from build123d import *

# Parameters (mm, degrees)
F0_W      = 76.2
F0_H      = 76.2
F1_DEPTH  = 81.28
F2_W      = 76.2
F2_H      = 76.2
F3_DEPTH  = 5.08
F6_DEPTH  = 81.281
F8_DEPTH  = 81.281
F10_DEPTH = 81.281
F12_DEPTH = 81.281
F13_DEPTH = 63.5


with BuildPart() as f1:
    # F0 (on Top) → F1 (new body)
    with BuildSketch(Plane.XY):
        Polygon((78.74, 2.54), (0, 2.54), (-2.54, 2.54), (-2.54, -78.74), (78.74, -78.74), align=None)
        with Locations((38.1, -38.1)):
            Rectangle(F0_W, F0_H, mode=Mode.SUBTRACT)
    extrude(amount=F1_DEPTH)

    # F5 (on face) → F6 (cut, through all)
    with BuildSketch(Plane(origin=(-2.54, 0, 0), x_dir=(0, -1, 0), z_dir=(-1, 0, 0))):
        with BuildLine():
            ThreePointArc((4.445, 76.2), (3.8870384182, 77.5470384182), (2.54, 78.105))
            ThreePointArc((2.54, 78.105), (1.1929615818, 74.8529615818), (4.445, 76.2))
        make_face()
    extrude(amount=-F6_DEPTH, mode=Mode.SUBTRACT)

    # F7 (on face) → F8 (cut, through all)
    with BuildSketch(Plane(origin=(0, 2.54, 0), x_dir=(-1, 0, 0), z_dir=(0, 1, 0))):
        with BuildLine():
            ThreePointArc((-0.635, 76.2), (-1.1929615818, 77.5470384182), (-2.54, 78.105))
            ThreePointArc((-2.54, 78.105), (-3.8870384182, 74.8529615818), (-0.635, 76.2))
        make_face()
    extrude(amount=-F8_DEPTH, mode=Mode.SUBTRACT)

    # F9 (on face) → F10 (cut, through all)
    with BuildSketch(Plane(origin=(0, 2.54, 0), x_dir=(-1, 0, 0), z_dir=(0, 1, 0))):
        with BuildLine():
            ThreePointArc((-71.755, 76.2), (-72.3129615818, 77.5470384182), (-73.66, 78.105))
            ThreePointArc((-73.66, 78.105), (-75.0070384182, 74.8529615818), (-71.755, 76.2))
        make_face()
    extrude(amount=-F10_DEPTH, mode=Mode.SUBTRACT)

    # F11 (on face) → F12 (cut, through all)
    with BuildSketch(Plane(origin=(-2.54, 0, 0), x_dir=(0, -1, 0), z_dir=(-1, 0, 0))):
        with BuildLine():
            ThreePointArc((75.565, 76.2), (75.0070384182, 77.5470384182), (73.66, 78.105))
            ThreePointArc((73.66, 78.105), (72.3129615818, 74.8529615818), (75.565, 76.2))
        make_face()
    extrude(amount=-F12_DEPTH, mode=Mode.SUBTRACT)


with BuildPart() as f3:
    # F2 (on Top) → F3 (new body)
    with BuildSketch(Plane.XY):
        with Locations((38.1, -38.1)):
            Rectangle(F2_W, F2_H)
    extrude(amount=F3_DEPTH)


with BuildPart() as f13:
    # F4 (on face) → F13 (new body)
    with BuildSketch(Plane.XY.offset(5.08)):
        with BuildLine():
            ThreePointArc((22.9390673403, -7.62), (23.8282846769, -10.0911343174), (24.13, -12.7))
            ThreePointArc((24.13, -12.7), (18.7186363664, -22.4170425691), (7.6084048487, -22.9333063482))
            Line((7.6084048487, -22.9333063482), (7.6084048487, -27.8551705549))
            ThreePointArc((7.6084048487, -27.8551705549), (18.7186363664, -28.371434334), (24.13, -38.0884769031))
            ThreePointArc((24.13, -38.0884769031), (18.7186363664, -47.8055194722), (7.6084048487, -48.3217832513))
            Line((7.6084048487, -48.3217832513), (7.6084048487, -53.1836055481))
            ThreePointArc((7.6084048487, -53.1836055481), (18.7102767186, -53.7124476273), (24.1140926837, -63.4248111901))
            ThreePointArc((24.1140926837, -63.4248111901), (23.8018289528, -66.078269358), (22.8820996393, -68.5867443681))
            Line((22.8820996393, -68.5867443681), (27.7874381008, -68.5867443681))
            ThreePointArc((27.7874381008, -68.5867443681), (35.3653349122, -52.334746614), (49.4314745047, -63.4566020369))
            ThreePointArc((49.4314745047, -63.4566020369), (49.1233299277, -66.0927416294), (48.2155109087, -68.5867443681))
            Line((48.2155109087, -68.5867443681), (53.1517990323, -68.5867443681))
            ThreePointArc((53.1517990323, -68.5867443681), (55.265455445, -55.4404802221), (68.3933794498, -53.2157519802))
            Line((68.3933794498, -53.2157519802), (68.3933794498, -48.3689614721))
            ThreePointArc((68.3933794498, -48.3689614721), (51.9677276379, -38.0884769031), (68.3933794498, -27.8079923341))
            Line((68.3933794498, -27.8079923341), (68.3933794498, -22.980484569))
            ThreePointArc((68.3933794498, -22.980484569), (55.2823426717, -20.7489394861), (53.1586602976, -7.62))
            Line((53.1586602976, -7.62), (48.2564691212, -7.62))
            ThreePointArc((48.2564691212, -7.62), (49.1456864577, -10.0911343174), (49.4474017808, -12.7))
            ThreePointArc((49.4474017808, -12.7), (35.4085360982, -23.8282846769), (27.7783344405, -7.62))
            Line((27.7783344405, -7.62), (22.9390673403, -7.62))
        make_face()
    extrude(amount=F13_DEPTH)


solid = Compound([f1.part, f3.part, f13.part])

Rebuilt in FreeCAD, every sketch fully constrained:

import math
import FreeCAD as App
import Part
import Sketcher
Q = App.Units.Quantity


def add_polygon(sketch, points):
    """Adds a closed chain of lines whose ends are joined by coincident constraints."""
    first, n = sketch.GeometryCount, len(points)
    for a, b in zip(points, points[1:] + points[:1]):
        sketch.addGeometry(Part.LineSegment(App.Vector(*a, 0), App.Vector(*b, 0)), False)
    for i in range(n):
        sketch.addConstraint(Sketcher.Constraint("Coincident", first + i, 2, first + (i + 1) % n, 1))

doc = App.newDocument("Part")
body = doc.addObject("PartDesign::Body", "Body")

# Sketch on XY plane
sketch1 = doc.addObject("Sketcher::SketchObject", "Sketch")
body.addObject(sketch1)
sketch1.AttachmentSupport = (doc.XY_Plane, [""])
sketch1.MapMode = "FlatFace"
add_polygon(sketch1, [(78.74, 2.54), (-2.54, 2.54), (-2.54, -78.74), (78.74, -78.74)])  # lines 0-3
add_polygon(sketch1, [(76.2, -76.2), (0, -76.2), (0, 0), (76.2, 0)])  # lines 4-7
sketch1.addConstraint(Sketcher.Constraint("Horizontal", 0))
sketch1.addConstraint(Sketcher.Constraint("Vertical", 1))
sketch1.addConstraint(Sketcher.Constraint("Horizontal", 2))
sketch1.addConstraint(Sketcher.Constraint("Vertical", 3))
sketch1.addConstraint(Sketcher.Constraint("Horizontal", 4))
sketch1.addConstraint(Sketcher.Constraint("Vertical", 5))
sketch1.addConstraint(Sketcher.Constraint("Horizontal", 6))
sketch1.addConstraint(Sketcher.Constraint("Vertical", 7))
sketch1.addConstraint(Sketcher.Constraint("Coincident", 5, 2, -1, 1))
sketch1.addConstraint(Sketcher.Constraint("Equal", 2, 1))
sketch1.addConstraint(Sketcher.Constraint("Equal", 6, 5))
sketch1.addConstraint(Sketcher.Constraint("DistanceX", 4, 2, 4, 1, Q("3 in")))
sketch1.addConstraint(Sketcher.Constraint("DistanceX", 0, 2, 0, 1, Q("3.2 in")))
sketch1.addConstraint(Sketcher.Constraint("DistanceX", 0, 2, -1, 1, Q("0.1 in")))
sketch1.addConstraint(Sketcher.Constraint("DistanceY", -1, 1, 0, 2, Q("0.1 in")))
pad1 = doc.addObject("PartDesign::Pad", "Pad")
body.addObject(pad1)
pad1.Profile = sketch1
pad1.Length = Q("3.2 in")

# Sketch on YZ plane
sketch2 = doc.addObject("Sketcher::SketchObject", "Sketch001")
body.addObject(sketch2)
sketch2.AttachmentSupport = (doc.YZ_Plane, [""])
sketch2.MapMode = "FlatFace"
sketch2.AttachmentOffset = App.Placement(App.Vector(0, 0, -0.1 * 25.4), App.Rotation())
sketch2.addGeometry(Part.ArcOfCircle(Part.Circle(App.Vector(-2.54, 76.2, 0), App.Vector(0, 0, 1), 1.905), math.radians(90), math.radians(180)), False)
sketch2.addGeometry(Part.ArcOfCircle(Part.Circle(App.Vector(-2.54, 76.2, 0), App.Vector(0, 0, 1), 1.905), math.radians(180), math.radians(450)), False)
sketch2.addConstraint(Sketcher.Constraint("Tangent", 0, 1, 1, 2))
sketch2.addConstraint(Sketcher.Constraint("Coincident", 1, 1, 0, 2))
sketch2.addConstraint(Sketcher.Constraint("Horizontal", 0, 3, 1, 1))
sketch2.addConstraint(Sketcher.Constraint("Vertical", 1, 3, 0, 1))
sketch2.addConstraint(Sketcher.Constraint("DistanceY", -1, 1, 0, 3, Q("3 in")))
sketch2.addConstraint(Sketcher.Constraint("Radius", 0, Q("0.075 in")))
sketch2.addConstraint(Sketcher.Constraint("DistanceX", 0, 3, -1, 1, Q("0.1 in")))
pocket1 = doc.addObject("PartDesign::Pocket", "Pocket")
body.addObject(pocket1)
pocket1.Profile = sketch2
pocket1.Type = "ThroughAll"
pocket1.Reversed = True

# Sketch on XZ plane
sketch3 = doc.addObject("Sketcher::SketchObject", "Sketch002")
body.addObject(sketch3)
sketch3.AttachmentSupport = (doc.XZ_Plane, [""])
sketch3.MapMode = "FlatFace"
sketch3.AttachmentOffset = App.Placement(App.Vector(0, 0, -0.1 * 25.4), App.Rotation())
sketch3.addGeometry(Part.ArcOfCircle(Part.Circle(App.Vector(2.54, 76.2, 0), App.Vector(0, 0, 1), 1.905), math.radians(90), math.radians(180)), False)
sketch3.addGeometry(Part.ArcOfCircle(Part.Circle(App.Vector(2.54, 76.2, 0), App.Vector(0, 0, 1), 1.905), math.radians(180), math.radians(450)), False)
sketch3.addConstraint(Sketcher.Constraint("Tangent", 0, 1, 1, 2))
sketch3.addConstraint(Sketcher.Constraint("Coincident", 1, 1, 0, 2))
sketch3.addConstraint(Sketcher.Constraint("Horizontal", 0, 3, 1, 1))
sketch3.addConstraint(Sketcher.Constraint("Vertical", 1, 3, 0, 1))
sketch3.addConstraint(Sketcher.Constraint("DistanceY", -1, 1, 0, 3, Q("3 in")))
sketch3.addConstraint(Sketcher.Constraint("Radius", 0, Q("0.075 in")))
sketch3.addConstraint(Sketcher.Constraint("DistanceX", -1, 1, 0, 3, Q("0.1 in")))
pocket2 = doc.addObject("PartDesign::Pocket", "Pocket001")
body.addObject(pocket2)
pocket2.Profile = sketch3
pocket2.Type = "ThroughAll"
pocket2.Reversed = True

# Sketch on XZ plane
sketch4 = doc.addObject("Sketcher::SketchObject", "Sketch003")
body.addObject(sketch4)
sketch4.AttachmentSupport = (doc.XZ_Plane, [""])
sketch4.MapMode = "FlatFace"
sketch4.AttachmentOffset = App.Placement(App.Vector(0, 0, -0.1 * 25.4), App.Rotation())
sketch4.addGeometry(Part.ArcOfCircle(Part.Circle(App.Vector(73.66, 76.2, 0), App.Vector(0, 0, 1), 1.905), math.radians(90), math.radians(180)), False)
sketch4.addGeometry(Part.ArcOfCircle(Part.Circle(App.Vector(73.66, 76.2, 0), App.Vector(0, 0, 1), 1.905), math.radians(180), math.radians(450)), False)
sketch4.addConstraint(Sketcher.Constraint("Tangent", 0, 1, 1, 2))
sketch4.addConstraint(Sketcher.Constraint("Coincident", 1, 1, 0, 2))
sketch4.addConstraint(Sketcher.Constraint("Horizontal", 0, 3, 1, 1))
sketch4.addConstraint(Sketcher.Constraint("Vertical", 1, 3, 0, 1))
sketch4.addConstraint(Sketcher.Constraint("DistanceY", -1, 1, 0, 3, Q("3 in")))
sketch4.addConstraint(Sketcher.Constraint("Radius", 0, Q("0.075 in")))
sketch4.addConstraint(Sketcher.Constraint("DistanceX", -1, 1, 0, 3, Q("2.9 in")))
pocket3 = doc.addObject("PartDesign::Pocket", "Pocket002")
body.addObject(pocket3)
pocket3.Profile = sketch4
pocket3.Type = "ThroughAll"
pocket3.Reversed = True

# Sketch on YZ plane
sketch5 = doc.addObject("Sketcher::SketchObject", "Sketch004")
body.addObject(sketch5)
sketch5.AttachmentSupport = (doc.YZ_Plane, [""])
sketch5.MapMode = "FlatFace"
sketch5.AttachmentOffset = App.Placement(App.Vector(0, 0, -0.1 * 25.4), App.Rotation())
sketch5.addGeometry(Part.ArcOfCircle(Part.Circle(App.Vector(-73.66, 76.2, 0), App.Vector(0, 0, 1), 1.905), math.radians(90), math.radians(180)), False)
sketch5.addGeometry(Part.ArcOfCircle(Part.Circle(App.Vector(-73.66, 76.2, 0), App.Vector(0, 0, 1), 1.905), math.radians(180), math.radians(450)), False)
sketch5.addConstraint(Sketcher.Constraint("Tangent", 0, 1, 1, 2))
sketch5.addConstraint(Sketcher.Constraint("Coincident", 1, 1, 0, 2))
sketch5.addConstraint(Sketcher.Constraint("Horizontal", 0, 3, 1, 1))
sketch5.addConstraint(Sketcher.Constraint("Vertical", 1, 3, 0, 1))
sketch5.addConstraint(Sketcher.Constraint("DistanceY", -1, 1, 0, 3, Q("3 in")))
sketch5.addConstraint(Sketcher.Constraint("Radius", 0, Q("0.075 in")))
sketch5.addConstraint(Sketcher.Constraint("DistanceX", 0, 3, -1, 1, Q("2.9 in")))
pocket4 = doc.addObject("PartDesign::Pocket", "Pocket003")
body.addObject(pocket4)
pocket4.Profile = sketch5
pocket4.Type = "ThroughAll"
pocket4.Reversed = True
body2 = doc.addObject("PartDesign::Body", "Body001")

# Sketch on XY plane
sketch6 = doc.addObject("Sketcher::SketchObject", "Sketch005")
body2.addObject(sketch6)
sketch6.AttachmentSupport = (doc.getObject("XY_Plane001"), [""])
sketch6.MapMode = "FlatFace"
add_polygon(sketch6, [(0, 0), (0, -76.2), (76.2, -76.2), (76.2, 0)])  # lines 0-3
sketch6.addConstraint(Sketcher.Constraint("Vertical", 0))
sketch6.addConstraint(Sketcher.Constraint("Horizontal", 1))
sketch6.addConstraint(Sketcher.Constraint("Vertical", 2))
sketch6.addConstraint(Sketcher.Constraint("Horizontal", 3))
sketch6.addConstraint(Sketcher.Constraint("Coincident", 3, 2, -1, 1))
sketch6.addConstraint(Sketcher.Constraint("Equal", 3, 0))
sketch6.addConstraint(Sketcher.Constraint("DistanceX", 1, 1, 1, 2, Q("3 in")))
pad2 = doc.addObject("PartDesign::Pad", "Pad001")
body2.addObject(pad2)
pad2.Profile = sketch6
pad2.Length = Q("0.2 in")
body3 = doc.addObject("PartDesign::Body", "Body002")

# Sketch on XY plane
sketch7 = doc.addObject("Sketcher::SketchObject", "Sketch006")
body3.addObject(sketch7)
sketch7.AttachmentSupport = (doc.getObject("XY_Plane002"), [""])
sketch7.MapMode = "FlatFace"
sketch7.AttachmentOffset = App.Placement(App.Vector(0, 0, 0.2 * 25.4), App.Rotation())
sketch7.addGeometry(Part.ArcOfCircle(Part.Circle(App.Vector(12.7, -12.7, 0), App.Vector(0, 0, 1), 11.43), math.radians(0), math.radians(26.3878)), False)
sketch7.addGeometry(Part.ArcOfCircle(Part.Circle(App.Vector(12.7, -12.7, 0), App.Vector(0, 0, 1), 11.43), math.radians(-116.452702), math.radians(0)), False)
sketch7.addGeometry(Part.LineSegment(App.Vector(7.608405, -22.933306, 0), App.Vector(7.608405, -27.855171, 0)), False)
sketch7.addGeometry(Part.ArcOfCircle(Part.Circle(App.Vector(12.7, -38.088477, 0), App.Vector(0, 0, 1), 11.43), math.radians(0), math.radians(116.452702)), False)
sketch7.addGeometry(Part.ArcOfCircle(Part.Circle(App.Vector(12.7, -38.088477, 0), App.Vector(0, 0, 1), 11.43), math.radians(-116.452702), math.radians(0)), False)
sketch7.addGeometry(Part.LineSegment(App.Vector(7.608405, -48.321783, 0), App.Vector(7.608405, -53.183606, 0)), False)
sketch7.addGeometry(Part.ArcOfCircle(Part.Circle(App.Vector(12.684093, -63.424811, 0), App.Vector(0, 0, 1), 11.43), math.radians(0), math.radians(116.363672)), False)
sketch7.addGeometry(Part.ArcOfCircle(Part.Circle(App.Vector(12.684093, -63.424811, 0), App.Vector(0, 0, 1), 11.43), math.radians(-26.8472), math.radians(0)), False)
sketch7.addGeometry(Part.LineSegment(App.Vector(22.8821, -68.586744, 0), App.Vector(27.787438, -68.586744, 0)), False)
sketch7.addGeometry(Part.ArcOfCircle(Part.Circle(App.Vector(38.001475, -63.456602, 0), App.Vector(0, 0, 1), 11.43), math.radians(0), math.radians(206.668729)), False)
sketch7.addGeometry(Part.ArcOfCircle(Part.Circle(App.Vector(38.001475, -63.456602, 0), App.Vector(0, 0, 1), 11.43), math.radians(-26.668729), math.radians(0)), False)
sketch7.addGeometry(Part.LineSegment(App.Vector(48.215511, -68.586744, 0), App.Vector(53.151799, -68.586744, 0)), False)
sketch7.addGeometry(Part.ArcOfCircle(Part.Circle(App.Vector(63.38178, -63.488472, 0), App.Vector(0, 0, 1), 11.43), math.radians(63.994328), math.radians(206.490094)), False)
sketch7.addGeometry(Part.LineSegment(App.Vector(68.393379, -53.215752, 0), App.Vector(68.393379, -48.368961, 0)), False)
sketch7.addGeometry(Part.ArcOfCircle(Part.Circle(App.Vector(63.397728, -38.088477, 0), App.Vector(0, 0, 1), 11.43), math.radians(64.08324), math.radians(295.91676)), False)
sketch7.addGeometry(Part.LineSegment(App.Vector(68.393379, -27.807992, 0), App.Vector(68.393379, -22.980485, 0)), False)
sketch7.addGeometry(Part.ArcOfCircle(Part.Circle(App.Vector(63.397728, -12.7, 0), App.Vector(0, 0, 1), 11.43), math.radians(153.6122), math.radians(295.91676)), False)
sketch7.addGeometry(Part.LineSegment(App.Vector(53.15866, -7.62, 0), App.Vector(48.256469, -7.62, 0)), False)
sketch7.addGeometry(Part.ArcOfCircle(Part.Circle(App.Vector(38.017402, -12.7, 0), App.Vector(0, 0, 1), 11.43), math.radians(0), math.radians(26.3878)), False)
sketch7.addGeometry(Part.ArcOfCircle(Part.Circle(App.Vector(38.017402, -12.7, 0), App.Vector(0, 0, 1), 11.43), math.radians(153.6122), math.radians(360)), False)
sketch7.addGeometry(Part.LineSegment(App.Vector(27.778334, -7.62, 0), App.Vector(22.939067, -7.62, 0)), False)
sketch7.addConstraint(Sketcher.Constraint("Tangent", 0, 1, 1, 2))
sketch7.addConstraint(Sketcher.Constraint("Coincident", 1, 1, 2, 1))
sketch7.addConstraint(Sketcher.Constraint("Coincident", 2, 2, 3, 2))
sketch7.addConstraint(Sketcher.Constraint("Tangent", 3, 1, 4, 2))
sketch7.addConstraint(Sketcher.Constraint("Coincident", 4, 1, 5, 1))
sketch7.addConstraint(Sketcher.Constraint("Coincident", 5, 2, 6, 2))
sketch7.addConstraint(Sketcher.Constraint("Tangent", 6, 1, 7, 2))
sketch7.addConstraint(Sketcher.Constraint("Coincident", 7, 1, 8, 1))
sketch7.addConstraint(Sketcher.Constraint("Coincident", 8, 2, 9, 2))
sketch7.addConstraint(Sketcher.Constraint("Tangent", 9, 1, 10, 2))
sketch7.addConstraint(Sketcher.Constraint("Coincident", 10, 1, 11, 1))
sketch7.addConstraint(Sketcher.Constraint("Coincident", 11, 2, 12, 2))
sketch7.addConstraint(Sketcher.Constraint("Coincident", 12, 1, 13, 1))
sketch7.addConstraint(Sketcher.Constraint("Coincident", 13, 2, 14, 2))
sketch7.addConstraint(Sketcher.Constraint("Coincident", 14, 1, 15, 1))
sketch7.addConstraint(Sketcher.Constraint("Coincident", 15, 2, 16, 2))
sketch7.addConstraint(Sketcher.Constraint("Coincident", 16, 1, 17, 1))
sketch7.addConstraint(Sketcher.Constraint("Coincident", 17, 2, 18, 2))
sketch7.addConstraint(Sketcher.Constraint("Tangent", 18, 1, 19, 2))
sketch7.addConstraint(Sketcher.Constraint("Coincident", 19, 1, 20, 1))
sketch7.addConstraint(Sketcher.Constraint("Coincident", 20, 2, 0, 2))
sketch7.addConstraint(Sketcher.Constraint("Vertical", 2))
sketch7.addConstraint(Sketcher.Constraint("Vertical", 5))
sketch7.addConstraint(Sketcher.Constraint("Horizontal", 8))
sketch7.addConstraint(Sketcher.Constraint("Horizontal", 11))
sketch7.addConstraint(Sketcher.Constraint("Vertical", 13))
sketch7.addConstraint(Sketcher.Constraint("Vertical", 15))
sketch7.addConstraint(Sketcher.Constraint("Horizontal", 17))
sketch7.addConstraint(Sketcher.Constraint("Horizontal", 20))
sketch7.addConstraint(Sketcher.Constraint("Equal", 0, 1))
sketch7.addConstraint(Sketcher.Constraint("Equal", 1, 3))
sketch7.addConstraint(Sketcher.Constraint("Equal", 3, 4))
sketch7.addConstraint(Sketcher.Constraint("Equal", 4, 6))
sketch7.addConstraint(Sketcher.Constraint("Equal", 6, 7))
sketch7.addConstraint(Sketcher.Constraint("Equal", 7, 9))
sketch7.addConstraint(Sketcher.Constraint("Equal", 9, 10))
sketch7.addConstraint(Sketcher.Constraint("Equal", 10, 12))
sketch7.addConstraint(Sketcher.Constraint("Equal", 12, 14))
sketch7.addConstraint(Sketcher.Constraint("Equal", 14, 16))
sketch7.addConstraint(Sketcher.Constraint("Equal", 16, 18))
sketch7.addConstraint(Sketcher.Constraint("Equal", 18, 19))
sketch7.addConstraint(Sketcher.Constraint("Horizontal", 4, 3, 14, 3))
sketch7.addConstraint(Sketcher.Constraint("Horizontal", 1, 3, 16, 3))
sketch7.addConstraint(Sketcher.Constraint("Horizontal", 16, 3, 18, 3))
sketch7.addConstraint(Sketcher.Constraint("Horizontal", 19, 3, 0, 1))
sketch7.addConstraint(Sketcher.Constraint("Horizontal", 14, 3, 3, 1))
sketch7.addConstraint(Sketcher.Constraint("Horizontal", 7, 3, 6, 1))
sketch7.addConstraint(Sketcher.Constraint("Horizontal", 10, 3, 9, 1))
sketch7.addConstraint(Sketcher.Constraint("Horizontal", 8, 2, 10, 1))
sketch7.addConstraint(Sketcher.Constraint("Horizontal", 0, 1, 18, 1))
sketch7.addConstraint(Sketcher.Constraint("Horizontal", 17, 2, 19, 1))
sketch7.addConstraint(Sketcher.Constraint("Vertical", 1, 3, 3, 3))
sketch7.addConstraint(Sketcher.Constraint("Vertical", 14, 3, 16, 3))
sketch7.addConstraint(Sketcher.Constraint("Vertical", 2, 2, 4, 1))
sketch7.addConstraint(Sketcher.Constraint("Vertical", 13, 2, 14, 1))
sketch7.addConstraint(Sketcher.Constraint("Radius", 0, Q("0.45 in")))
sketch7.addConstraint(Sketcher.Constraint("DistanceY", 12, 3, 3, 3, Q("0.9999998 in")))
sketch7.addConstraint(Sketcher.Constraint("DistanceX", -1, 1, 0, 3, Q("0.5 in")))
sketch7.addConstraint(Sketcher.Constraint("DistanceY", 0, 3, -1, 1, Q("0.5 in")))
sketch7.addConstraint(Sketcher.Constraint("DistanceY", 16, 1, -1, 1, Q("0.3 in")))
sketch7.addConstraint(Sketcher.Constraint("DistanceX", 8, 1, 8, 2, Q("4.905338 mm")))
sketch7.addConstraint(Sketcher.Constraint("DistanceX", 11, 1, 11, 2, Q("4.936288 mm")))
sketch7.addConstraint(Sketcher.Constraint("DistanceX", 17, 2, 17, 1, Q("4.902191 mm")))
sketch7.addConstraint(Sketcher.Constraint("DistanceY", 13, 1, 13, 2, Q("4.846791 mm")))
sketch7.addConstraint(Sketcher.Constraint("DistanceX", -1, 1, 18, 3, Q("38.017402 mm")))
sketch7.addConstraint(Sketcher.Constraint("DistanceX", -1, 1, 7, 1, Q("22.8821 mm")))
sketch7.addConstraint(Sketcher.Constraint("DistanceX", -1, 1, 11, 2, Q("53.151799 mm")))
sketch7.addConstraint(Sketcher.Constraint("DistanceX", 12, 3, 12, 1, Q("5.011599 mm")))
sketch7.addConstraint(Sketcher.Constraint("DistanceY", 2, 2, 2, 1, Q("4.921864 mm")))
sketch7.addConstraint(Sketcher.Constraint("DistanceY", 5, 2, 5, 1, Q("4.861822 mm")))
sketch7.addConstraint(Sketcher.Constraint("DistanceY", 15, 1, 15, 2, Q("4.827508 mm")))
pad3 = doc.addObject("PartDesign::Pad", "Pad002")
body3.addObject(pad3)
pad3.Profile = sketch7
pad3.Length = Q("2.5 in")

doc.recompute()
